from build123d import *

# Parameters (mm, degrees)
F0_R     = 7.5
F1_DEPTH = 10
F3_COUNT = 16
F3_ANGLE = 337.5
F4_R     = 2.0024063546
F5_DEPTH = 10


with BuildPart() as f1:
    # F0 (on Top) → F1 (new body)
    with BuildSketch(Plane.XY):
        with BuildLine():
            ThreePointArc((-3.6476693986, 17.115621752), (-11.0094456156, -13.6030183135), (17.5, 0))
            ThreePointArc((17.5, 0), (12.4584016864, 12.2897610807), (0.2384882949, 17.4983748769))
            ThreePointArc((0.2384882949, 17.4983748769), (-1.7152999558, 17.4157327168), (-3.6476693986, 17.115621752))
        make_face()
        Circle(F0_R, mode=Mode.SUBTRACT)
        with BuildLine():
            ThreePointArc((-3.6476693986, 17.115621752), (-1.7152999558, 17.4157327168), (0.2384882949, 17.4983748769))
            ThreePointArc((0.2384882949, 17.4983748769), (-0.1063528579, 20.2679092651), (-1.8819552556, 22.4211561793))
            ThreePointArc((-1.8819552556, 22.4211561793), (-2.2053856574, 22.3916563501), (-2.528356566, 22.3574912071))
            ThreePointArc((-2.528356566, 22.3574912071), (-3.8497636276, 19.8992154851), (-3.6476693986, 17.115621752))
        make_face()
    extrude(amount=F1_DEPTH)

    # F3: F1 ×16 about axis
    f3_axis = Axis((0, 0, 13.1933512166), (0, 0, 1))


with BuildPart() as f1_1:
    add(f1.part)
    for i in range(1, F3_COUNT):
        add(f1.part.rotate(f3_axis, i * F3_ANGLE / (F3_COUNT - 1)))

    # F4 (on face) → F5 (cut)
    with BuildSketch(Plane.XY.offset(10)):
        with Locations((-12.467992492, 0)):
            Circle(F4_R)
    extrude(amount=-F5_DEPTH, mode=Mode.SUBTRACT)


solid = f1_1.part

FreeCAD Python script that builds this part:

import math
import FreeCAD as App
import Part
import Sketcher

V = App.Vector
Q = App.Units.Quantity

doc = App.newDocument("Part")
body = doc.addObject("PartDesign::Body", "Body")

# Sketch on XY plane
sketch1 = body.newObject("Sketcher::SketchObject", "Sketch")
sketch1.AttachmentSupport = (doc.getObject("XY_Plane"), [""])
sketch1.MapMode = "FlatFace"
sketch1.addGeometry([
    Part.ArcOfCircle(Part.Circle(V(0, 0, 0), V(0, 0, 1), 17.5), math.radians(102), math.radians(360)),  # 0
    Part.ArcOfCircle(Part.Circle(V(0, 0, 0), V(0, 0, 1), 17.5), math.radians(0), math.radians(89)),  # 1
    Part.ArcOfCircle(Part.Circle(V(-4.7, 18.3, 0), V(0, 0, 1), 5), math.radians(-9), math.radians(56)),  # 2
    Part.ArcOfCircle(Part.Circle(V(0, 0, 0), V(0, 0, 1), 22.5), math.radians(94.8), math.radians(96.45)),  # 3
    Part.ArcOfCircle(Part.Circle(V(1, 18.9, 0), V(0, 0, 1), 5), math.radians(136), math.radians(200)),  # 4
    Part.Circle(V(0, 0, 0), V(0, 0, 1), 7.5),  # 5
], False)
sketch1.addConstraint([
    Sketcher.Constraint("Tangent", 0, 2, 1, 1),
    Sketcher.Constraint("Coincident", 1, 2, 2, 1),
    Sketcher.Constraint("Coincident", 2, 2, 3, 1),
    Sketcher.Constraint("Coincident", 3, 2, 4, 1),
    Sketcher.Constraint("Coincident", 4, 2, 0, 1),
    Sketcher.Constraint("Coincident", 0, 3, -1, 1),
    Sketcher.Constraint("Coincident", 3, 3, -1, 1),
    Sketcher.Constraint("Coincident", 5, 3, -1, 1),
    Sketcher.Constraint("Equal", 0, 1),
    Sketcher.Constraint("Equal", 2, 4),
    Sketcher.Constraint("PointOnObject", 0, 2, -1),
    Sketcher.Constraint("Diameter", 5, Q("15 mm")),
    Sketcher.Constraint("Radius", 2, Q("5 mm")),
    Sketcher.Constraint("Radius", 0, Q("17.5 mm")),
    Sketcher.Constraint("Radius", 3, Q("22.5 mm")),
    Sketcher.Constraint("DistanceX", -1, 1, 4, 3, Q("1.040001 mm")),
    Sketcher.Constraint("DistanceY", -1, 1, 2, 3, Q("18.289899 mm")),
    Sketcher.Constraint("DistanceX", 3, 2, 2, 2, Q("0.646401 mm")),
    Sketcher.Constraint("DistanceY", -1, 1, 4, 3, Q("18.855089 mm")),
])
pad1 = body.newObject("PartDesign::Pad", "Pad")
pad1.Profile = sketch1
pad1.Length = 10
body2 = doc.addObject("PartDesign::Body", "Body001")
doc.recompute()

body2.BaseFeature = body
doc.recompute()

body3 = doc.addObject("PartDesign::Body", "Body002")
body3.BaseFeature = body
body3.Placement = App.Placement(V(0, 0, 0), App.Rotation(V(0, 0, 1), 22.5))
boolean = body2.newObject("PartDesign::Boolean", "Boolean")
boolean.Type = "Fuse"
boolean.addObjects([body3])
doc.recompute()

body4 = doc.addObject("PartDesign::Body", "Body003")
body4.BaseFeature = body
body4.Placement = App.Placement(V(0, 0, 0), App.Rotation(V(0, 0, 1), 45))
boolean2 = body2.newObject("PartDesign::Boolean", "Boolean001")
boolean2.Type = "Fuse"
boolean2.addObjects([body4])
doc.recompute()

body5 = doc.addObject("PartDesign::Body", "Body004")
body5.BaseFeature = body
body5.Placement = App.Placement(V(0, 0, 0), App.Rotation(V(0, 0, 1), 67.5))
boolean3 = body2.newObject("PartDesign::Boolean", "Boolean002")
boolean3.Type = "Fuse"
boolean3.addObjects([body5])
doc.recompute()

body6 = doc.addObject("PartDesign::Body", "Body005")
body6.BaseFeature = body
body6.Placement = App.Placement(V(0, 0, 0), App.Rotation(V(0, 0, 1), 90))
boolean4 = body2.newObject("PartDesign::Boolean", "Boolean003")
boolean4.Type = "Fuse"
boolean4.addObjects([body6])
doc.recompute()

body7 = doc.addObject("PartDesign::Body", "Body006")
body7.BaseFeature = body
body7.Placement = App.Placement(V(0, 0, 0), App.Rotation(V(0, 0, 1), 112.5))
boolean5 = body2.newObject("PartDesign::Boolean", "Boolean004")
boolean5.Type = "Fuse"
boolean5.addObjects([body7])
doc.recompute()

body8 = doc.addObject("PartDesign::Body", "Body007")
body8.BaseFeature = body
body8.Placement = App.Placement(V(0, 0, 0), App.Rotation(V(0, 0, 1), 135))
boolean6 = body2.newObject("PartDesign::Boolean", "Boolean005")
boolean6.Type = "Fuse"
boolean6.addObjects([body8])
doc.recompute()

body9 = doc.addObject("PartDesign::Body", "Body008")
body9.BaseFeature = body
body9.Placement = App.Placement(V(0, 0, 0), App.Rotation(V(0, 0, 1), 157.5))
boolean7 = body2.newObject("PartDesign::Boolean", "Boolean006")
boolean7.Type = "Fuse"
boolean7.addObjects([body9])
doc.recompute()

body10 = doc.addObject("PartDesign::Body", "Body009")
body10.BaseFeature = body
body10.Placement = App.Placement(V(0, 0, 0), App.Rotation(V(0, 0, 1), 180))
boolean8 = body2.newObject("PartDesign::Boolean", "Boolean007")
boolean8.Type = "Fuse"
boolean8.addObjects([body10])
doc.recompute()

body11 = doc.addObject("PartDesign::Body", "Body010")
body11.BaseFeature = body
body11.Placement = App.Placement(V(0, 0, 0), App.Rotation(V(0, 0, 1), 202.5))
boolean9 = body2.newObject("PartDesign::Boolean", "Boolean008")
boolean9.Type = "Fuse"
boolean9.addObjects([body11])
doc.recompute()

body12 = doc.addObject("PartDesign::Body", "Body011")
body12.BaseFeature = body
body12.Placement = App.Placement(V(0, 0, 0), App.Rotation(V(0, 0, 1), 225))
boolean10 = body2.newObject("PartDesign::Boolean", "Boolean009")
boolean10.Type = "Fuse"
boolean10.addObjects([body12])
doc.recompute()

body13 = doc.addObject("PartDesign::Body", "Body012")
body13.BaseFeature = body
body13.Placement = App.Placement(V(0, 0, 0), App.Rotation(V(0, 0, 1), 247.5))
boolean11 = body2.newObject("PartDesign::Boolean", "Boolean010")
boolean11.Type = "Fuse"
boolean11.addObjects([body13])
doc.recompute()

body14 = doc.addObject("PartDesign::Body", "Body013")
body14.BaseFeature = body
body14.Placement = App.Placement(V(0, 0, 0), App.Rotation(V(0, 0, 1), 270))
boolean12 = body2.newObject("PartDesign::Boolean", "Boolean011")
boolean12.Type = "Fuse"
boolean12.addObjects([body14])
doc.recompute()

body15 = doc.addObject("PartDesign::Body", "Body014")
body15.BaseFeature = body
body15.Placement = App.Placement(V(0, 0, 0), App.Rotation(V(0, 0, 1), 292.5))
boolean13 = body2.newObject("PartDesign::Boolean", "Boolean012")
boolean13.Type = "Fuse"
boolean13.addObjects([body15])
doc.recompute()

body16 = doc.addObject("PartDesign::Body", "Body015")
body16.BaseFeature = body
body16.Placement = App.Placement(V(0, 0, 0), App.Rotation(V(0, 0, 1), 315))
boolean14 = body2.newObject("PartDesign::Boolean", "Boolean013")
boolean14.Type = "Fuse"
boolean14.addObjects([body16])
doc.recompute()

body.Placement = App.Placement(V(0, 0, 0), App.Rotation(V(0, 0, 1), 337.5))
boolean15 = body2.newObject("PartDesign::Boolean", "Boolean014")
boolean15.Type = "Fuse"
boolean15.addObjects([body])

# Sketch on XY plane
sketch2 = body2.newObject("Sketcher::SketchObject", "Sketch001")
sketch2.AttachmentSupport = (doc.getObject("XY_Plane001"), [""])
sketch2.MapMode = "FlatFace"
sketch2.AttachmentOffset = App.Placement(V(0, 0, 10), App.Rotation())
sketch2.addGeometry(Part.Circle(V(-12.5, 0, 0), V(0, 0, 1), 2), False)
sketch2.addConstraint([
    Sketcher.Constraint("PointOnObject", 0, 3, -1),
    Sketcher.Constraint("Diameter", 0, Q("4.004813 mm")),
    Sketcher.Constraint("DistanceX", 0, 3, -1, 1, Q("12.467992 mm")),
])
pocket1 = body2.newObject("PartDesign::Pocket", "Pocket")
pocket1.Profile = sketch2
pocket1.Length = 10

doc.recompute()
